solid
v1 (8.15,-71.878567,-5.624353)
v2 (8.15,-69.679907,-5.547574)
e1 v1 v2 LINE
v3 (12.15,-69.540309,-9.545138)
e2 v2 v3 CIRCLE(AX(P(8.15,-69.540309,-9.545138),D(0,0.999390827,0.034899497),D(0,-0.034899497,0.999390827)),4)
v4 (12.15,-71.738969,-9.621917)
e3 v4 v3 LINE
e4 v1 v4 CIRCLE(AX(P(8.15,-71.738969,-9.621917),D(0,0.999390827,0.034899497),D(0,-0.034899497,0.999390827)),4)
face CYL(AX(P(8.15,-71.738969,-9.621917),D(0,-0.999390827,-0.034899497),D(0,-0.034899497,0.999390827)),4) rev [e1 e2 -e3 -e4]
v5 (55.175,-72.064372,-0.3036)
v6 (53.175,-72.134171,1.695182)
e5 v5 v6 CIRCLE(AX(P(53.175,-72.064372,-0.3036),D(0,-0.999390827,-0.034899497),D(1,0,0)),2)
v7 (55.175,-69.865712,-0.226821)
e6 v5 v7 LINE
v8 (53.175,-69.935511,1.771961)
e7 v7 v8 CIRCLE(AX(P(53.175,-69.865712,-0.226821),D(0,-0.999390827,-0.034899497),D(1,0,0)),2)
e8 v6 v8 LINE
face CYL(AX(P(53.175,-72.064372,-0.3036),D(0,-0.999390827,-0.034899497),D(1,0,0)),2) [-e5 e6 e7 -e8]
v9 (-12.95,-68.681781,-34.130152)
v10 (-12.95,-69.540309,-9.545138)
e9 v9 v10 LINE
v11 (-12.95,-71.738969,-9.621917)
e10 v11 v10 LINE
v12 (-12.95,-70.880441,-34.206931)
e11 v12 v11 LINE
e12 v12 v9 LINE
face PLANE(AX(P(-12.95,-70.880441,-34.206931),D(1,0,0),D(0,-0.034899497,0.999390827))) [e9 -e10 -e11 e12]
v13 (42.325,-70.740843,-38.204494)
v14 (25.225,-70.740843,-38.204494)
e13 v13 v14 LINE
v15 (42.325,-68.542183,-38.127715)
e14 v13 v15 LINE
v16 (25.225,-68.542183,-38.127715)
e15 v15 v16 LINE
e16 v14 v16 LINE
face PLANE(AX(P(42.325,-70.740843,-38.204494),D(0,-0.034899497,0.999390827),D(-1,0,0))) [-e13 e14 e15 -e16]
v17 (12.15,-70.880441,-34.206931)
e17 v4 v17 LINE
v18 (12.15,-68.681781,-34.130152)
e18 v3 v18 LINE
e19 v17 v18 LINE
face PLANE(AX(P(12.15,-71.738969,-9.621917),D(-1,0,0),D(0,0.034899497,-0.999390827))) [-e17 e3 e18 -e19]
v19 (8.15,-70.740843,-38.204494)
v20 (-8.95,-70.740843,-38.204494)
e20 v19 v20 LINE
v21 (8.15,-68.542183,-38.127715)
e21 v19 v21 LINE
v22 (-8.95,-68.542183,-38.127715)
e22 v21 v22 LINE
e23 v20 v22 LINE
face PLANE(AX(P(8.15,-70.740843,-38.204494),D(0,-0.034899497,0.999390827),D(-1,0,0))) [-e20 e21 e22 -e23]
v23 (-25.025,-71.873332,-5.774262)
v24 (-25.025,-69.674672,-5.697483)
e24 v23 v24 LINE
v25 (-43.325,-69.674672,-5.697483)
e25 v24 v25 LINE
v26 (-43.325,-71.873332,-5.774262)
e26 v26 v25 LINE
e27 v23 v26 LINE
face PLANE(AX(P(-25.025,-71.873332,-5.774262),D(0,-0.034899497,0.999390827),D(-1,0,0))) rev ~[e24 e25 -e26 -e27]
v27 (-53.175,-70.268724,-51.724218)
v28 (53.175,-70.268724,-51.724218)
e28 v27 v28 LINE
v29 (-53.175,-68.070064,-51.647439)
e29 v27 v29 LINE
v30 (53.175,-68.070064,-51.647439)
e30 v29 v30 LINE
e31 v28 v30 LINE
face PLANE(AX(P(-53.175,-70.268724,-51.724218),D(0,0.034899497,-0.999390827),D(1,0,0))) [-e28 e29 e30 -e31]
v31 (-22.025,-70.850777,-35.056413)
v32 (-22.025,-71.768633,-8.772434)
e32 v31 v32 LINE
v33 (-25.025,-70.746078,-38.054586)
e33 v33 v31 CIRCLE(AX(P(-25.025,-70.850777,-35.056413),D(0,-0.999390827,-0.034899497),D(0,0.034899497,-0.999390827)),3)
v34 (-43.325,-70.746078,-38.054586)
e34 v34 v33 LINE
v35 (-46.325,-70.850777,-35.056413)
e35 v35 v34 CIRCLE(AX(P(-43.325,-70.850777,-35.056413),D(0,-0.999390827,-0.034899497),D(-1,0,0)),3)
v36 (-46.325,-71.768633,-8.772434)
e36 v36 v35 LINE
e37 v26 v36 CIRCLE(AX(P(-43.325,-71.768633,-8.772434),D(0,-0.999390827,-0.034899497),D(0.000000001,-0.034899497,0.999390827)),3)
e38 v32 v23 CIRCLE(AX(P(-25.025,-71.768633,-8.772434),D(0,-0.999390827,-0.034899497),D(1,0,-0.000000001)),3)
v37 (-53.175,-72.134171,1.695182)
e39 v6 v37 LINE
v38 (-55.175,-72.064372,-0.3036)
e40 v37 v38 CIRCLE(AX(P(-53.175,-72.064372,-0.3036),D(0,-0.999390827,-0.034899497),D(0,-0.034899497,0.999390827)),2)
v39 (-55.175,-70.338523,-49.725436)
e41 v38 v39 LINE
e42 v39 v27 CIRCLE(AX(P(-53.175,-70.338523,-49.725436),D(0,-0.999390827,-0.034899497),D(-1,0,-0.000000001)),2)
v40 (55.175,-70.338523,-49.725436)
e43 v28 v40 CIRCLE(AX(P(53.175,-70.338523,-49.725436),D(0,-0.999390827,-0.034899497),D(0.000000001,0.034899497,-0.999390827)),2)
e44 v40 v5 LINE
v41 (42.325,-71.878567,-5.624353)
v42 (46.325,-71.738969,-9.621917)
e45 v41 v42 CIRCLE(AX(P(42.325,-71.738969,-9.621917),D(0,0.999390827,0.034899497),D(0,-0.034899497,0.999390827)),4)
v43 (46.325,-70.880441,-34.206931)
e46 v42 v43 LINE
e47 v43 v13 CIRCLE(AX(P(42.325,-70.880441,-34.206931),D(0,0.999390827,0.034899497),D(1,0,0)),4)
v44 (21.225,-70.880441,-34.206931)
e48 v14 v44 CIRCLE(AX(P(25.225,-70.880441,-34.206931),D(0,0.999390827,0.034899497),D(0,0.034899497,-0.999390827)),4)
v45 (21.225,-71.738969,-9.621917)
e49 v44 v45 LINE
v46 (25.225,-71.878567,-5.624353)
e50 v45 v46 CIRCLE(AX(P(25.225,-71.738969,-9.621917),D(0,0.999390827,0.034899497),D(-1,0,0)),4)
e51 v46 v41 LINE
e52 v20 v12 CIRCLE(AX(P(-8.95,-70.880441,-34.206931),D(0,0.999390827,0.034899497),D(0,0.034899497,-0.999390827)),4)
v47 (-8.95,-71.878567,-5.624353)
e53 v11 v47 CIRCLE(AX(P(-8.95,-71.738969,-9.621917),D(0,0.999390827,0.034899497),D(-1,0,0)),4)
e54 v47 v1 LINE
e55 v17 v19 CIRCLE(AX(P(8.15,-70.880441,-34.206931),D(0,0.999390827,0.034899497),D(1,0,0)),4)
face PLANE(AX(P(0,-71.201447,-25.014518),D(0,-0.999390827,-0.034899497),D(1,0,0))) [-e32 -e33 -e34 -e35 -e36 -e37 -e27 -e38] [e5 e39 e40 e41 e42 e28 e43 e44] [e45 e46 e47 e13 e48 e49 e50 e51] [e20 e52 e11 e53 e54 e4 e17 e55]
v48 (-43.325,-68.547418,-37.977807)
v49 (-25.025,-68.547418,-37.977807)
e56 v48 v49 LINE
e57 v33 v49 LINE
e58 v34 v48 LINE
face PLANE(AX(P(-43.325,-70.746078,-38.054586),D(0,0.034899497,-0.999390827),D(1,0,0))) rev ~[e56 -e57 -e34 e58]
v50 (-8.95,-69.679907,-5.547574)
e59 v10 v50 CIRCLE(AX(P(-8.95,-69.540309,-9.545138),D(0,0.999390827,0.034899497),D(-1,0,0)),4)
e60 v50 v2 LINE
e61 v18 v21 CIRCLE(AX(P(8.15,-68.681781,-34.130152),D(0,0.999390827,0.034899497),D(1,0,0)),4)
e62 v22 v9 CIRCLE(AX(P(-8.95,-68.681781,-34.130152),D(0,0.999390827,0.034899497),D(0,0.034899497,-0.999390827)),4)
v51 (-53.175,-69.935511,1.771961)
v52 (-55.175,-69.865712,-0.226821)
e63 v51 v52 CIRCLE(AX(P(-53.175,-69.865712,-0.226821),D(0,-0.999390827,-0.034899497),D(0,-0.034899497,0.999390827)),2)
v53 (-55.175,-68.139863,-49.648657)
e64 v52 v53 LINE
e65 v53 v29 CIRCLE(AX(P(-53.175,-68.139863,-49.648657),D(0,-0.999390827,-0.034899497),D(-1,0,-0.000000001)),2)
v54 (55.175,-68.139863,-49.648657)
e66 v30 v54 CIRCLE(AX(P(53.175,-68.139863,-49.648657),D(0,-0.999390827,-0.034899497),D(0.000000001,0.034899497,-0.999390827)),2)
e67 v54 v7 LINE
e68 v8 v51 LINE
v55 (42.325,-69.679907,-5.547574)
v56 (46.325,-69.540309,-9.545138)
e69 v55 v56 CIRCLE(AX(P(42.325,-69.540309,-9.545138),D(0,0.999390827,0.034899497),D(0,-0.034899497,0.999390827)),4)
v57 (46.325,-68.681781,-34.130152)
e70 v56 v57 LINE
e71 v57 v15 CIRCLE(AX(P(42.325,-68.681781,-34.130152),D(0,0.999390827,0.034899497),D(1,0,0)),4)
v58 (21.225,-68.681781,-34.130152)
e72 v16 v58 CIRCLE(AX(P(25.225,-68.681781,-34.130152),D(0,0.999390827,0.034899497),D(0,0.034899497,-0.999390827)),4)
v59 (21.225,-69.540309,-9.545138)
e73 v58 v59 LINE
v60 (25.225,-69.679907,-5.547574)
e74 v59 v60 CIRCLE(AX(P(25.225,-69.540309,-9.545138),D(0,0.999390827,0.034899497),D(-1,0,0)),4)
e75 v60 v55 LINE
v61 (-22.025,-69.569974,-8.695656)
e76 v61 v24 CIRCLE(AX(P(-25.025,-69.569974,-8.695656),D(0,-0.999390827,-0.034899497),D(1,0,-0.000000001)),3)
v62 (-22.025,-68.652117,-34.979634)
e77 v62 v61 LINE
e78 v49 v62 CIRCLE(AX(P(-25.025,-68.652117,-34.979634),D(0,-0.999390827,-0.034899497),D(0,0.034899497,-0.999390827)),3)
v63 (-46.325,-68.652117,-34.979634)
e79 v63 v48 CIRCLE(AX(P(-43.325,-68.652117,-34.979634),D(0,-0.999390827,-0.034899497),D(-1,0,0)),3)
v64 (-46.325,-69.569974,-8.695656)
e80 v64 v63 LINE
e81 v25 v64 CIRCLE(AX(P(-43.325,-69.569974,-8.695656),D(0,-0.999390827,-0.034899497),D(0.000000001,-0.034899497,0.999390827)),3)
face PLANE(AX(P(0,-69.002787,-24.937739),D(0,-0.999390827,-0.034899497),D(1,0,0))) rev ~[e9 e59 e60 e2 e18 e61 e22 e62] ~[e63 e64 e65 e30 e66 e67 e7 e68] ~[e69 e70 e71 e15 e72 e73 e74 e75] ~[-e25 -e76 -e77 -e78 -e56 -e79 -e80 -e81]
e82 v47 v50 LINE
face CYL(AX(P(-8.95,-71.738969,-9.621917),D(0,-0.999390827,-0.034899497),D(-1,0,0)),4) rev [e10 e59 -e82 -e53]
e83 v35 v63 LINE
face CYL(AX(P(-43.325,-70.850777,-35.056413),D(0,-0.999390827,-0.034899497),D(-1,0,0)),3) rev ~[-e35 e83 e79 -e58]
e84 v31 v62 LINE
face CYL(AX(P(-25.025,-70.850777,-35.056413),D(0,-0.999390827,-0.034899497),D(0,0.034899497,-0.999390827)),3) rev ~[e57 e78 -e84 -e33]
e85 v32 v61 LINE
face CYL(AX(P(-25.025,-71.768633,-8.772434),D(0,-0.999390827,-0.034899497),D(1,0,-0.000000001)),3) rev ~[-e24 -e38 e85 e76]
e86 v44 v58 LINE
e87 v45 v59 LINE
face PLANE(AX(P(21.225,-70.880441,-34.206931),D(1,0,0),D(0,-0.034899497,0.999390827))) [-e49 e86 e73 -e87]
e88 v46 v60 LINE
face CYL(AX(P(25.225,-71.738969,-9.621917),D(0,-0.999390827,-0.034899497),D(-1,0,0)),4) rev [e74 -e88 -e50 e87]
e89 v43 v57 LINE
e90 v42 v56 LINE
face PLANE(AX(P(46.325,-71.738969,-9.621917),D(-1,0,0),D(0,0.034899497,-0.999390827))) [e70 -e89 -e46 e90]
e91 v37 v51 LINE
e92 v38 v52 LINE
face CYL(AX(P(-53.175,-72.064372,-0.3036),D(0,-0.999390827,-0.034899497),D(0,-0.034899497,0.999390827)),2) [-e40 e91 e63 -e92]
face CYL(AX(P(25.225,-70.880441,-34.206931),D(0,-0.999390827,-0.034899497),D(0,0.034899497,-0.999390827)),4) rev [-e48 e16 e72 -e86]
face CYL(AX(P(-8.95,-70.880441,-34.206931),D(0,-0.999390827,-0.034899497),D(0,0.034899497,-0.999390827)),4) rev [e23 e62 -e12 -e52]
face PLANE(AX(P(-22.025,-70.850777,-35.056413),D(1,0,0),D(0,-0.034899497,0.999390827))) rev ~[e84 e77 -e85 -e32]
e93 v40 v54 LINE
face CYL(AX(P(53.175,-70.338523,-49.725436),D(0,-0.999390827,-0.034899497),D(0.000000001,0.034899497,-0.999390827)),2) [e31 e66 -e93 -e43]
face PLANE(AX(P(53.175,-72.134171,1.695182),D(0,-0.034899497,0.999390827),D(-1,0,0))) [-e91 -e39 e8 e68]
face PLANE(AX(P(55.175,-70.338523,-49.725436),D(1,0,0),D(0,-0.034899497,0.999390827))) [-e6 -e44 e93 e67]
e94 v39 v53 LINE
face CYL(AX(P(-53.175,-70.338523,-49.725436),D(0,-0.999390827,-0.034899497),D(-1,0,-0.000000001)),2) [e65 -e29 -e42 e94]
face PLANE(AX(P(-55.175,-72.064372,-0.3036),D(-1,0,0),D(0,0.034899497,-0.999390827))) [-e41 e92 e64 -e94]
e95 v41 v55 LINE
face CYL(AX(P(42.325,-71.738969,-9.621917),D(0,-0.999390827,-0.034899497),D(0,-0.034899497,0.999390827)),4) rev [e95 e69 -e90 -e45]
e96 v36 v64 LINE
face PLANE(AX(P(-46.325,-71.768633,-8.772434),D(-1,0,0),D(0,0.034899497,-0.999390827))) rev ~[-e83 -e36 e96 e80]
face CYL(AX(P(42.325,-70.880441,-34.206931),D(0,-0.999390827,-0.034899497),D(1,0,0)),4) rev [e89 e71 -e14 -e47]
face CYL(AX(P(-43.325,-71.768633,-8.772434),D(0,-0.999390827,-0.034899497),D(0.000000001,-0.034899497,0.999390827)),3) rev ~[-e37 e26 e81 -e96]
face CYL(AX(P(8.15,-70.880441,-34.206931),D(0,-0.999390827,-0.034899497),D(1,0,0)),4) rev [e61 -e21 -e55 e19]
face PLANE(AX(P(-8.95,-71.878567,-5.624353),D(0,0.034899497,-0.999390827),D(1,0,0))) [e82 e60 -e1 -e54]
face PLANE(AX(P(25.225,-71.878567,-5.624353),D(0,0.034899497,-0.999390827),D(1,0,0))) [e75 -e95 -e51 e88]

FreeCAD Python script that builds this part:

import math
import FreeCAD as App
import Part
import Sketcher

V = App.Vector

doc = App.newDocument("Part")
body = doc.addObject("PartDesign::Body", "Body")

sketch1 = body.newObject("Sketcher::SketchObject", "Sketch")
sketch1.Placement = App.Placement(V(0, -71.987188, -2.513848), App.Rotation(V(1, 0, 0), V(0, -0.034899497, 0.999390827), V(0, -0.999390827, -0.034899497), "ZXY"))
sketch1.addGeometry([
    Part.LineSegment(V(-53.175, -49.240366, 0), V(53.175, -49.240366, 0)),
    Part.ArcOfCircle(Part.Circle(V(53.175, -47.240366, 0), V(0, 0, 1), 2), math.radians(-90), math.radians(0)),
    Part.LineSegment(V(55.175, -47.240366, 0), V(55.175, 2.211595, 0)),
    Part.ArcOfCircle(Part.Circle(V(53.175, 2.211595, 0), V(0, 0, 1), 2), math.radians(0), math.radians(90)),
    Part.LineSegment(V(53.175, 4.211595, 0), V(-53.175, 4.211595, 0)),
    Part.ArcOfCircle(Part.Circle(V(-53.175, 2.211595, 0), V(0, 0, 1), 2), math.radians(90), math.radians(180)),
    Part.LineSegment(V(-55.175, 2.211595, 0), V(-55.175, -47.240366, 0)),
    Part.ArcOfCircle(Part.Circle(V(-53.175, -47.240366, 0), V(0, 0, 1), 2), math.radians(-180), math.radians(-90)),
    Part.LineSegment(V(-22.025, -6.262401, 0), V(-22.025, -32.562401, 0)),
    Part.ArcOfCircle(Part.Circle(V(-25.025, -32.562401, 0), V(0, 0, 1), 3), math.radians(-90), math.radians(0)),
    Part.LineSegment(V(-25.025, -35.562401, 0), V(-43.325, -35.562401, 0)),
    Part.ArcOfCircle(Part.Circle(V(-43.325, -32.562401, 0), V(0, 0, 1), 3), math.radians(180), math.radians(270)),
    Part.LineSegment(V(-46.325, -32.562401, 0), V(-46.325, -6.262401, 0)),
    Part.ArcOfCircle(Part.Circle(V(-43.325, -6.262401, 0), V(0, 0, 1), 3), math.radians(90), math.radians(180)),
    Part.LineSegment(V(-43.325, -3.262401, 0), V(-25.025, -3.262401, 0)),
    Part.ArcOfCircle(Part.Circle(V(-25.025, -6.262401, 0), V(0, 0, 1), 3), math.radians(0), math.radians(90)),
    Part.ArcOfCircle(Part.Circle(V(-8.95, -7.112401, 0), V(0, 0, 1), 4), math.radians(90), math.radians(180)),
    Part.LineSegment(V(-8.95, -3.112401, 0), V(8.15, -3.112401, 0)),
    Part.ArcOfCircle(Part.Circle(V(8.15, -7.112401, 0), V(0, 0, 1), 4), math.radians(0), math.radians(90)),
    Part.LineSegment(V(12.15, -7.112401, 0), V(12.15, -31.712401, 0)),
    Part.ArcOfCircle(Part.Circle(V(8.15, -31.712401, 0), V(0, 0, 1), 4), math.radians(-90), math.radians(0)),
    Part.LineSegment(V(8.15, -35.712401, 0), V(-8.95, -35.712401, 0)),
    Part.ArcOfCircle(Part.Circle(V(-8.95, -31.712401, 0), V(0, 0, 1), 4), math.radians(180), math.radians(270)),
    Part.LineSegment(V(-12.95, -31.712401, 0), V(-12.95, -7.112401, 0)),
    Part.ArcOfCircle(Part.Circle(V(25.225, -7.112401, 0), V(0, 0, 1), 4), math.radians(90), math.radians(180)),
    Part.LineSegment(V(25.225, -3.112401, 0), V(42.325, -3.112401, 0)),
    Part.ArcOfCircle(Part.Circle(V(42.325, -7.112401, 0), V(0, 0, 1), 4), math.radians(0), math.radians(90)),
    Part.LineSegment(V(46.325, -7.112401, 0), V(46.325, -31.712401, 0)),
    Part.ArcOfCircle(Part.Circle(V(42.325, -31.712401, 0), V(0, 0, 1), 4), math.radians(-90), math.radians(0)),
    Part.LineSegment(V(42.325, -35.712401, 0), V(25.225, -35.712401, 0)),
    Part.ArcOfCircle(Part.Circle(V(25.225, -31.712401, 0), V(0, 0, 1), 4), math.radians(180), math.radians(270)),
    Part.LineSegment(V(21.225, -31.712401, 0), V(21.225, -7.112401, 0)),
], False)
sketch1.addConstraint([
    Sketcher.Constraint("Tangent", 0, 2, 1, 1),
    Sketcher.Constraint("Tangent", 1, 2, 2, 1),
    Sketcher.Constraint("Tangent", 2, 2, 3, 1),
    Sketcher.Constraint("Tangent", 3, 2, 4, 1),
    Sketcher.Constraint("Tangent", 4, 2, 5, 1),
    Sketcher.Constraint("Tangent", 5, 2, 6, 1),
    Sketcher.Constraint("Tangent", 6, 2, 7, 1),
    Sketcher.Constraint("Tangent", 7, 2, 0, 1),
    Sketcher.Constraint("Tangent", 8, 2, 9, 2),
    Sketcher.Constraint("Tangent", 9, 1, 10, 1),
    Sketcher.Constraint("Tangent", 10, 2, 11, 2),
    Sketcher.Constraint("Tangent", 11, 1, 12, 1),
    Sketcher.Constraint("Tangent", 12, 2, 13, 2),
    Sketcher.Constraint("Tangent", 13, 1, 14, 1),
    Sketcher.Constraint("Tangent", 14, 2, 15, 2),
    Sketcher.Constraint("Tangent", 15, 1, 8, 1),
    Sketcher.Constraint("Tangent", 16, 1, 17, 1),
    Sketcher.Constraint("Tangent", 17, 2, 18, 2),
    Sketcher.Constraint("Tangent", 18, 1, 19, 1),
    Sketcher.Constraint("Tangent", 19, 2, 20, 2),
    Sketcher.Constraint("Tangent", 20, 1, 21, 1),
    Sketcher.Constraint("Tangent", 21, 2, 22, 2),
    Sketcher.Constraint("Tangent", 22, 1, 23, 1),
    Sketcher.Constraint("Tangent", 23, 2, 16, 2),
    Sketcher.Constraint("Tangent", 24, 1, 25, 1),
    Sketcher.Constraint("Tangent", 25, 2, 26, 2),
    Sketcher.Constraint("Tangent", 26, 1, 27, 1),
    Sketcher.Constraint("Tangent", 27, 2, 28, 2),
    Sketcher.Constraint("Tangent", 28, 1, 29, 1),
    Sketcher.Constraint("Tangent", 29, 2, 30, 2),
    Sketcher.Constraint("Tangent", 30, 1, 31, 1),
    Sketcher.Constraint("Tangent", 31, 2, 24, 2),
    Sketcher.Constraint("Horizontal", 0),
    Sketcher.Constraint("Vertical", 2),
    Sketcher.Constraint("Horizontal", 4),
    Sketcher.Constraint("Vertical", 6),
    Sketcher.Constraint("Vertical", 8),
    Sketcher.Constraint("Horizontal", 10),
    Sketcher.Constraint("Vertical", 12),
    Sketcher.Constraint("Horizontal", 14),
    Sketcher.Constraint("Horizontal", 17),
    Sketcher.Constraint("Vertical", 19),
    Sketcher.Constraint("Horizontal", 21),
    Sketcher.Constraint("Vertical", 23),
    Sketcher.Constraint("Horizontal", 25),
    Sketcher.Constraint("Vertical", 27),
    Sketcher.Constraint("Horizontal", 29),
    Sketcher.Constraint("Vertical", 31),
    Sketcher.Constraint("Equal", 1, 3),
    Sketcher.Constraint("Equal", 3, 5),
    Sketcher.Constraint("Equal", 5, 7),
    Sketcher.Constraint("Equal", 9, 11),
    Sketcher.Constraint("Equal", 11, 13),
    Sketcher.Constraint("Equal", 13, 15),
    Sketcher.Constraint("Equal", 16, 18),
    Sketcher.Constraint("Equal", 18, 20),
    Sketcher.Constraint("Equal", 20, 22),
    Sketcher.Constraint("Equal", 22, 24),
    Sketcher.Constraint("Equal", 24, 26),
    Sketcher.Constraint("Equal", 26, 28),
    Sketcher.Constraint("Equal", 28, 30),
    Sketcher.Constraint("Horizontal", 18, 3, 24, 3),
    Sketcher.Constraint("Horizontal", 22, 3, 28, 3),
    Sketcher.Constraint("Equal", 21, 25),
    Sketcher.Constraint("Radius", 1, 2.0),
    Sketcher.Constraint("Radius", 9, 3.0),
    Sketcher.Constraint("Radius", 16, 4.0),
    Sketcher.Constraint("DistanceX", 10, 2, 10, 1, 18.3),
    Sketcher.Constraint("DistanceX", 17, 1, 17, 2, 17.1),
    Sketcher.Constraint("DistanceY", 8, 2, 8, 1, 26.3),
    Sketcher.Constraint("DistanceY", 19, 2, 19, 1, 24.6),
    Sketcher.Constraint("DistanceX", 0, 1, 0, 2, 106.35),
    Sketcher.Constraint("DistanceX", 9, 3, 1, 3, 78.2),
    Sketcher.Constraint("DistanceX", 16, 3, -1, 1, 8.95),
    Sketcher.Constraint("DistanceY", 16, 3, 15, 3, 0.85),
    Sketcher.Constraint("DistanceX", 24, 3, 3, 3, 27.95),
    Sketcher.Constraint("DistanceX", -1, 1, 1, 3, 53.175),
    Sketcher.Constraint("DistanceY", 2, 1, 2, 2, 49.451961),
    Sketcher.Constraint("DistanceY", 9, 3, -1, 1, 32.562401),
    Sketcher.Constraint("DistanceY", 1, 3, -1, 1, 47.240366),
])
pad1 = body.newObject("PartDesign::Pad", "Pad")
pad1.Profile = sketch1
pad1.Length = 2.2
pad1.Reversed = True

doc.recompute()
